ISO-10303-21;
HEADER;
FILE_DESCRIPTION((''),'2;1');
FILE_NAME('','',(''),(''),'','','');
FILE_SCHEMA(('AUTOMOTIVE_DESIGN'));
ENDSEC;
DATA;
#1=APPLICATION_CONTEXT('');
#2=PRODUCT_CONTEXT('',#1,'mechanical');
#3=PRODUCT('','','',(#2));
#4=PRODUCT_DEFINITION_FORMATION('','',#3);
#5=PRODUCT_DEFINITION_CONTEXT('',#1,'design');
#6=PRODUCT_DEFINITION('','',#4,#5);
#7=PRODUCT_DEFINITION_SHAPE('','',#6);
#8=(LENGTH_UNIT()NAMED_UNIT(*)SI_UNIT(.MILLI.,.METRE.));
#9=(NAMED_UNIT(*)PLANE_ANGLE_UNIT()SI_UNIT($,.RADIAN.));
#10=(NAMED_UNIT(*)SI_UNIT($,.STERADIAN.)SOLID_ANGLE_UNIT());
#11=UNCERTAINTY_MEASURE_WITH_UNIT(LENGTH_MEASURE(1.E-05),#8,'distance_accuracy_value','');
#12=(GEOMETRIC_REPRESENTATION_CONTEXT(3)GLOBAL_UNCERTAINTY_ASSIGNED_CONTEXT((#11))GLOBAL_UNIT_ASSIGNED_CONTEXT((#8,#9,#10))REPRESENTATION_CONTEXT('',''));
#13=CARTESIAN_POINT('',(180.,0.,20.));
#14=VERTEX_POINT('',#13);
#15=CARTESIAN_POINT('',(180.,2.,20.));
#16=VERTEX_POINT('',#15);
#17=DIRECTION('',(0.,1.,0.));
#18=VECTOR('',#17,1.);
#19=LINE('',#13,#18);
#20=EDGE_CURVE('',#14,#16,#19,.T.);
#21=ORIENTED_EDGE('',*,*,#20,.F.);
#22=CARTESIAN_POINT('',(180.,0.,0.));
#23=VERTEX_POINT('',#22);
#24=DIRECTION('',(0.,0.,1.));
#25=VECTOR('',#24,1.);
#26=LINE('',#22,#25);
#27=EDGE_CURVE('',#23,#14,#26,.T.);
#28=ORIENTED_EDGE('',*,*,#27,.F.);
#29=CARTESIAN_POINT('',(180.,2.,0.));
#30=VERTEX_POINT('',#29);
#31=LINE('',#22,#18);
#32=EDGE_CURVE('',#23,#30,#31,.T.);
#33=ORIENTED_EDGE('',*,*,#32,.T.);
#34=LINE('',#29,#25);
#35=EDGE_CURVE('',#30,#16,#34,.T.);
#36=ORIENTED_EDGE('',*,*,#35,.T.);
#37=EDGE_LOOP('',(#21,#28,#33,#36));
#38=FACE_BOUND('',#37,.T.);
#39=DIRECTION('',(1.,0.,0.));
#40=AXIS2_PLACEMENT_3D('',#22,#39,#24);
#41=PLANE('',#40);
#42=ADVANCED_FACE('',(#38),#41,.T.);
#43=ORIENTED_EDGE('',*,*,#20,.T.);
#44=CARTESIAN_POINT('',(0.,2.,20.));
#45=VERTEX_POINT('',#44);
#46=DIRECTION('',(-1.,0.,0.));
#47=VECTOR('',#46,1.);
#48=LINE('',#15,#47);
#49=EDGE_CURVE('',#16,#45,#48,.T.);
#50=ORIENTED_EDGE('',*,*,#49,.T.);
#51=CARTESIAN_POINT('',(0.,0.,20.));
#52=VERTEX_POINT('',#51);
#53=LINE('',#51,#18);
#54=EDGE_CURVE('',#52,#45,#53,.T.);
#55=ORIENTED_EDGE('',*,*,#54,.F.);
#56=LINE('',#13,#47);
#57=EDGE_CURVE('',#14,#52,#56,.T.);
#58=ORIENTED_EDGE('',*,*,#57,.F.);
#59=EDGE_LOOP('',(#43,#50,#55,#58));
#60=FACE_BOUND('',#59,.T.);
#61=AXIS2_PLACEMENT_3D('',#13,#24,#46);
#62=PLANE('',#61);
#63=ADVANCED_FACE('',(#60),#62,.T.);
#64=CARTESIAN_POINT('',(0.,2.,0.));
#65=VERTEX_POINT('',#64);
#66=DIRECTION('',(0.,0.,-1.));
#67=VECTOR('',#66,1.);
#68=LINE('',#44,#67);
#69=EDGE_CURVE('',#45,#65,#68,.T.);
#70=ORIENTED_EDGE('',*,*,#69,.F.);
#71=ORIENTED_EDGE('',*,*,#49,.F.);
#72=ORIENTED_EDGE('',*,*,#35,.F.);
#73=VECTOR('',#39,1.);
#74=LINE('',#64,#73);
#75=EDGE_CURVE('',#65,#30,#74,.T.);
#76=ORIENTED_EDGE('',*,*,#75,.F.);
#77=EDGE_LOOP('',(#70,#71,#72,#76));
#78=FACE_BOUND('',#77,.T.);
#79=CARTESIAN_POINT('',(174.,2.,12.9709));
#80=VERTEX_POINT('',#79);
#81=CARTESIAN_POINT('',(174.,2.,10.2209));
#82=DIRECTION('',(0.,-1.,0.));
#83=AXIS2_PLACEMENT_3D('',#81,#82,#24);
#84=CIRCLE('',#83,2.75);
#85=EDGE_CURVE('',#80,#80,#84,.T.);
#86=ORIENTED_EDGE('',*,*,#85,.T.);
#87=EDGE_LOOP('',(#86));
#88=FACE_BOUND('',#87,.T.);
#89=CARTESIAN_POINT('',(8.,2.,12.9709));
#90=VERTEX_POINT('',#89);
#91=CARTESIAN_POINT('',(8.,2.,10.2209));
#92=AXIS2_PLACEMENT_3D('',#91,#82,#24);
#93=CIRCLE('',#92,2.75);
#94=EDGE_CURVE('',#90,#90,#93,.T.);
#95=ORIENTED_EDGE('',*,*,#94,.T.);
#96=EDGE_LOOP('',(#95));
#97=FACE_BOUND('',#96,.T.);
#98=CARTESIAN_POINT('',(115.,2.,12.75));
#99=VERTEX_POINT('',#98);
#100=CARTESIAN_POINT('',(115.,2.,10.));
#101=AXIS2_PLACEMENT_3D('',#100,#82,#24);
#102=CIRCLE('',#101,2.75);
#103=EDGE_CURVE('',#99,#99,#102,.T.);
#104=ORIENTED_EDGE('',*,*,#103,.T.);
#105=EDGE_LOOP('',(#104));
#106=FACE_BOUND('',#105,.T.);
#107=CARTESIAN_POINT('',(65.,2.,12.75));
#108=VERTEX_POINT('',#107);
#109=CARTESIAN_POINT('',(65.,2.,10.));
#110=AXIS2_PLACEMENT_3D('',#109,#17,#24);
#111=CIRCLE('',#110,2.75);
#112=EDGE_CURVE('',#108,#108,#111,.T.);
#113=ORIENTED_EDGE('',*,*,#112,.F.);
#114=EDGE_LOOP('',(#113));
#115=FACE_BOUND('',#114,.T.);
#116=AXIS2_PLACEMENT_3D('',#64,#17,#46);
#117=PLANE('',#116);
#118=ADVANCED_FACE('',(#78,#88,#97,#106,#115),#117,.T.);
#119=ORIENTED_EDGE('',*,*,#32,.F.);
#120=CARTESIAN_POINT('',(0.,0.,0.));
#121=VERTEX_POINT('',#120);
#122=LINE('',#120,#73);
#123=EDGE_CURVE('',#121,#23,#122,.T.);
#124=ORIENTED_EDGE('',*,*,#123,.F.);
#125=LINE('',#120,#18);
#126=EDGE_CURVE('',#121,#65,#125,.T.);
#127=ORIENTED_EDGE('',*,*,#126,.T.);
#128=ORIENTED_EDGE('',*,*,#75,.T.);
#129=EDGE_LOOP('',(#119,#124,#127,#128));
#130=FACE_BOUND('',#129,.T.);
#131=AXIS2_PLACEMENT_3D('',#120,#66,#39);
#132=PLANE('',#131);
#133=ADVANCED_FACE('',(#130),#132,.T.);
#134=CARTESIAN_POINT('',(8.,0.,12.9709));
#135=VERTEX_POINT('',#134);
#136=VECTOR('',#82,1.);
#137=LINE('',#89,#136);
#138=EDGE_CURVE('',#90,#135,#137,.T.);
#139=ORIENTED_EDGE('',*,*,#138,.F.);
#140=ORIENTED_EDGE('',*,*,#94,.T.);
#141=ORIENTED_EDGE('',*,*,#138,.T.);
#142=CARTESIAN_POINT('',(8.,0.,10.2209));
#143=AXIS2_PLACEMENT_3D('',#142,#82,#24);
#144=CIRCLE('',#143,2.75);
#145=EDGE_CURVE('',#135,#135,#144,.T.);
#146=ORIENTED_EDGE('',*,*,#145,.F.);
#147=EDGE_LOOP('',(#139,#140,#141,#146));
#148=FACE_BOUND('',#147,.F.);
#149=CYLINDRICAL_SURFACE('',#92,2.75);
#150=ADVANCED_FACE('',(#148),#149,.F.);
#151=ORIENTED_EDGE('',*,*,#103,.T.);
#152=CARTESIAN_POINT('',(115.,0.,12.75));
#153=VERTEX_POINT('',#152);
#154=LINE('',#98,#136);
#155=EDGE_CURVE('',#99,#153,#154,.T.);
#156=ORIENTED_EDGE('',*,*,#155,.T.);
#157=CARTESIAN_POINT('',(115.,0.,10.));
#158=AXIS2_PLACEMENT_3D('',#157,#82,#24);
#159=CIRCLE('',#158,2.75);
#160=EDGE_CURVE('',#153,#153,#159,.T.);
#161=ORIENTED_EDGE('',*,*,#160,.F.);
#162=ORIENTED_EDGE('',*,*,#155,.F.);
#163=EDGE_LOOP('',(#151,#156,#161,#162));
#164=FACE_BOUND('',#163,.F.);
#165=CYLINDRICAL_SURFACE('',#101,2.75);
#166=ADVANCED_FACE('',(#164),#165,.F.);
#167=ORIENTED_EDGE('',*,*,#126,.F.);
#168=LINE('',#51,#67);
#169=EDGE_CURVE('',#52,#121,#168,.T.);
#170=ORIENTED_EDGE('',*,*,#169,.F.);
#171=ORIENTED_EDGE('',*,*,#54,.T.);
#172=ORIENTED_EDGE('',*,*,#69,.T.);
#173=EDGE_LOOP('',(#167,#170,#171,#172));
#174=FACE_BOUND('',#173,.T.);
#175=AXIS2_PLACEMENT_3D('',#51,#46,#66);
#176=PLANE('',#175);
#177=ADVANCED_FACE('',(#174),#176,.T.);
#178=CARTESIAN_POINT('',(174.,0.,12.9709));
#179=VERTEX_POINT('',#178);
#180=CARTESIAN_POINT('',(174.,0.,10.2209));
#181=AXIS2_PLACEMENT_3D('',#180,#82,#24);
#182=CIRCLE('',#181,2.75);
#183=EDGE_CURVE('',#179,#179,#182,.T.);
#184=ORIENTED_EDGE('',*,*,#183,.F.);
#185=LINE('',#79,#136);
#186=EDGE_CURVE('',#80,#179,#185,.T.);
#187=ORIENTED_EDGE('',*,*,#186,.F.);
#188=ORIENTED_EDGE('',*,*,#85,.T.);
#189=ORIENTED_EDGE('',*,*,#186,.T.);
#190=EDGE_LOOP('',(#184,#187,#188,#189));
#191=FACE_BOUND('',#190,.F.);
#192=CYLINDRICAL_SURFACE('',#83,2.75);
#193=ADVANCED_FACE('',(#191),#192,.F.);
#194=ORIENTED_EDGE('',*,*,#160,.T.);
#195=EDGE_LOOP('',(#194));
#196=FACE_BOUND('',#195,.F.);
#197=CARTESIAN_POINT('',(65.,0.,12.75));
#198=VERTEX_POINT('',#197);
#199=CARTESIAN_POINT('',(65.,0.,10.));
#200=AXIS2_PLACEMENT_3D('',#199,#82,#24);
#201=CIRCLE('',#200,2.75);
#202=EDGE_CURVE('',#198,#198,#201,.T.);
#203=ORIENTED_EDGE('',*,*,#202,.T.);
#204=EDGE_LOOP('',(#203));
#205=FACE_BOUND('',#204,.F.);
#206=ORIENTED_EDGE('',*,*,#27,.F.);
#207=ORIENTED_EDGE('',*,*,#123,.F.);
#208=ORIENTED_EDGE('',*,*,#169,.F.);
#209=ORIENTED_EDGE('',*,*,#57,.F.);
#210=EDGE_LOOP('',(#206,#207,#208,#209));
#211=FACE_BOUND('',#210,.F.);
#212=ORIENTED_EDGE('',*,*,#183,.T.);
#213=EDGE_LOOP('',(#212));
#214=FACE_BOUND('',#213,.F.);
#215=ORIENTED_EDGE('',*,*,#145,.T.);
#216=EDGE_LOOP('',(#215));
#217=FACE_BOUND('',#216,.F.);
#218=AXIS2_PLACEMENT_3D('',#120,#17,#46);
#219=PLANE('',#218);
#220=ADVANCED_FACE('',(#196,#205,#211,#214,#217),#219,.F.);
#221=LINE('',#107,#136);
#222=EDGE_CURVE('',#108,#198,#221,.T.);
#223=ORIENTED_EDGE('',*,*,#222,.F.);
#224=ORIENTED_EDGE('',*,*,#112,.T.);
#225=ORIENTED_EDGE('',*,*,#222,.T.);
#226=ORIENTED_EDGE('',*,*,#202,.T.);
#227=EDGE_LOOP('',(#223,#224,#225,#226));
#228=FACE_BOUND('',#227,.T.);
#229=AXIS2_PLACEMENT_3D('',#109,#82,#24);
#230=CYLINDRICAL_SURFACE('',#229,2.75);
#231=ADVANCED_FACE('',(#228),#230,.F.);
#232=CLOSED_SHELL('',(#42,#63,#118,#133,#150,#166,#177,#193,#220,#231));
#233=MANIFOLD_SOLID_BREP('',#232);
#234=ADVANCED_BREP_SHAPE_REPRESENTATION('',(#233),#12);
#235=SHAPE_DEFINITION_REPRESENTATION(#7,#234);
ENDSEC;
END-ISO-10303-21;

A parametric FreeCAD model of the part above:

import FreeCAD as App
import Part
import Sketcher

doc = App.newDocument("Part")
body = doc.addObject("PartDesign::Body", "Body")

# Sketch on XZ plane
sketch1 = doc.addObject("Sketcher::SketchObject", "Sketch")
body.addObject(sketch1)
sketch1.AttachmentSupport = (doc.XZ_Plane, [""])
sketch1.MapMode = "FlatFace"
sketch1.addGeometry(Part.LineSegment(App.Vector(180, 0, 0), App.Vector(0, 0, 0)), False)
sketch1.addGeometry(Part.LineSegment(App.Vector(0, 0, 0), App.Vector(0, 20, 0)), False)
sketch1.addGeometry(Part.LineSegment(App.Vector(0, 20, 0), App.Vector(180, 20, 0)), False)
sketch1.addGeometry(Part.LineSegment(App.Vector(180, 20, 0), App.Vector(180, 0, 0)), False)
sketch1.addConstraint(Sketcher.Constraint("Coincident", 0, 2, 1, 1))
sketch1.addConstraint(Sketcher.Constraint("Coincident", 1, 2, 2, 1))
sketch1.addConstraint(Sketcher.Constraint("Coincident", 2, 2, 3, 1))
sketch1.addConstraint(Sketcher.Constraint("Coincident", 3, 2, 0, 1))
sketch1.addConstraint(Sketcher.Constraint("Horizontal", 0))
sketch1.addConstraint(Sketcher.Constraint("Vertical", 1))
sketch1.addConstraint(Sketcher.Constraint("Horizontal", 2))
sketch1.addConstraint(Sketcher.Constraint("Vertical", 3))
sketch1.addConstraint(Sketcher.Constraint("Coincident", 0, 2, -1, 1))
sketch1.addConstraint(Sketcher.Constraint("DistanceX", 0, 2, 0, 1, 180.0))
sketch1.addConstraint(Sketcher.Constraint("DistanceY", 1, 1, 1, 2, 20.0))
pad1 = doc.addObject("PartDesign::Pad", "Pad")
body.addObject(pad1)
pad1.Profile = sketch1
pad1.Length = 2
pad1.Reversed = True

# Sketch on XZ plane
sketch2 = doc.addObject("Sketcher::SketchObject", "Sketch001")
body.addObject(sketch2)
sketch2.AttachmentSupport = (doc.XZ_Plane, [""])
sketch2.MapMode = "FlatFace"
sketch2.AttachmentOffset = App.Placement(App.Vector(0, 0, -2), App.Rotation())
sketch2.addGeometry(Part.Circle(App.Vector(8, 10.2209, 0), App.Vector(0, 0, 1), 2.75), False)
sketch2.addConstraint(Sketcher.Constraint("Diameter", 0, 5.5))
sketch2.addConstraint(Sketcher.Constraint("DistanceX", -1, 1, 0, 3, 8.0))
sketch2.addConstraint(Sketcher.Constraint("DistanceY", -1, 1, 0, 3, 10.221))
doc.recompute()
hole = doc.addObject("PartDesign::Hole", "Hole")
body.addObject(hole)
hole.Profile = sketch2
hole.ThreadType = "None"
hole.Diameter = 5.5
hole.DepthType = "ThroughAll"
hole.Reversed = True
doc.recompute()

linearpattern = doc.addObject("PartDesign::LinearPattern", "LinearPattern")
body.addObject(linearpattern)
linearpattern.Originals = [hole]
linearpattern.Direction = (doc.X_Axis, [""])
linearpattern.Mode = "offset"
linearpattern.Offset = 166
linearpattern.Occurrences = 2
body.Tip = linearpattern

# Sketch on XZ plane
sketch3 = doc.addObject("Sketcher::SketchObject", "Sketch002")
body.addObject(sketch3)
sketch3.AttachmentSupport = (doc.XZ_Plane, [""])
sketch3.MapMode = "FlatFace"
sketch3.AttachmentOffset = App.Placement(App.Vector(0, 0, -2), App.Rotation())
sketch3.addGeometry(Part.Circle(App.Vector(115, 10, 0), App.Vector(0, 0, 1), 2.75), False)
sketch3.addConstraint(Sketcher.Constraint("Diameter", 0, 5.5))
sketch3.addConstraint(Sketcher.Constraint("DistanceX", -1, 1, 0, 3, 115.0))
sketch3.addConstraint(Sketcher.Constraint("DistanceY", -1, 1, 0, 3, 10.0))
doc.recompute()
hole2 = doc.addObject("PartDesign::Hole", "Hole001")
body.addObject(hole2)
hole2.Profile = sketch3
hole2.ThreadType = "None"
hole2.Diameter = 5.5
hole2.DepthType = "ThroughAll"
hole2.Reversed = True
doc.recompute()

datumplane = doc.addObject("PartDesign::Plane", "DatumPlane")
body.addObject(datumplane)
datumplane.AttachmentSupport = (doc.YZ_Plane, [""])
datumplane.MapMode = "FlatFace"
datumplane.AttachmentOffset = App.Placement(App.Vector(0, 0, 90), App.Rotation())
mirrored = doc.addObject("PartDesign::Mirrored", "Mirrored")
body.addObject(mirrored)
mirrored.Originals = [hole2]
mirrored.MirrorPlane = (datumplane, [""])
body.Tip = mirrored

doc.recompute()
